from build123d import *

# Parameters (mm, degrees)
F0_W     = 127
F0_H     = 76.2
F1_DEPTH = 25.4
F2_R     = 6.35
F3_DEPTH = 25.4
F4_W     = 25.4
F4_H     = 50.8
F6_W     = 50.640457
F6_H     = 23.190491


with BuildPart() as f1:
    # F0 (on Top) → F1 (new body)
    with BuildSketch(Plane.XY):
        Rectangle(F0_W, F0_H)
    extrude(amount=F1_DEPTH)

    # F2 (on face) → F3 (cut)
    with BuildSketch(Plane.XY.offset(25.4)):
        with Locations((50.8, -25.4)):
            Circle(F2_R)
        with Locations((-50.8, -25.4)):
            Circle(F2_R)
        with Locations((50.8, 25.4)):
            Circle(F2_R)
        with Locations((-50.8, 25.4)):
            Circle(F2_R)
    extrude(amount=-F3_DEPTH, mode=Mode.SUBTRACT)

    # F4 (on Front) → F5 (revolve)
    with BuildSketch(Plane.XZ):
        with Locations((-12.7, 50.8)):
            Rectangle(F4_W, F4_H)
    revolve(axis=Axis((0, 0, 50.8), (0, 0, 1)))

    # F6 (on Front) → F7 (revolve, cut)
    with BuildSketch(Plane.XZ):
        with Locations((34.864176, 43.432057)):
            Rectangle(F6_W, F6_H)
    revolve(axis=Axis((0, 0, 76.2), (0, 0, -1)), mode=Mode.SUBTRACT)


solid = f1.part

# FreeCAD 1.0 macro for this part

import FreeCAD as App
import Part
import Sketcher
Q = App.Units.Quantity

doc = App.newDocument("Part")
body = doc.addObject("PartDesign::Body", "Body")

sketch1 = body.newObject("Sketcher::SketchObject", "Sketch")
sketch1.AttachmentSupport = (doc.getObject("XY_Plane"), [""])
sketch1.MapMode = "FlatFace"
sketch1.addGeometry([
    Part.LineSegment(App.Vector(-64, 38, 0), App.Vector(-64, -38, 0)),
    Part.LineSegment(App.Vector(-64, -38, 0), App.Vector(64, -38, 0)),
    Part.LineSegment(App.Vector(64, -38, 0), App.Vector(64, 38, 0)),
    Part.LineSegment(App.Vector(64, 38, 0), App.Vector(-64, 38, 0)),
], False)
sketch1.addConstraint([
    Sketcher.Constraint("Coincident", 0, 2, 1, 1),
    Sketcher.Constraint("Coincident", 1, 2, 2, 1),
    Sketcher.Constraint("Coincident", 2, 2, 3, 1),
    Sketcher.Constraint("Coincident", 3, 2, 0, 1),
    Sketcher.Constraint("Vertical", 0),
    Sketcher.Constraint("Horizontal", 1),
    Sketcher.Constraint("Vertical", 2),
    Sketcher.Constraint("Horizontal", 3),
    Sketcher.Constraint("Symmetric", 0, 2, 2, 2, -1, 1),
    Sketcher.Constraint("DistanceX", 1, 1, 1, 2, Q("5 in")),
    Sketcher.Constraint("DistanceY", 0, 2, 0, 1, Q("3 in")),
])
pad1 = body.newObject("PartDesign::Pad", "Pad")
pad1.Profile = sketch1
pad1.Length = Q("1 in")

sketch2 = body.newObject("Sketcher::SketchObject", "Sketch001")
sketch2.AttachmentSupport = (doc.getObject("XY_Plane"), [""])
sketch2.MapMode = "FlatFace"
sketch2.AttachmentOffset = App.Placement(App.Vector(0, 0, 1 * 25.4), App.Rotation())
sketch2.addGeometry([
    Part.Circle(App.Vector(51, -25, 0), App.Vector(0, 0, 1), 6),
    Part.Circle(App.Vector(-51, -25, 0), App.Vector(0, 0, 1), 6),
    Part.Circle(App.Vector(51, 25, 0), App.Vector(0, 0, 1), 6),
    Part.Circle(App.Vector(-51, 25, 0), App.Vector(0, 0, 1), 6),
], False)
sketch2.addConstraint([
    Sketcher.Constraint("Equal", 0, 1),
    Sketcher.Constraint("Equal", 1, 2),
    Sketcher.Constraint("Equal", 2, 3),
    Sketcher.Constraint("Symmetric", 1, 3, 2, 3, -1, 1),
    Sketcher.Constraint("Symmetric", 0, 3, 3, 3, -1, 1),
    Sketcher.Constraint("Symmetric", 0, 3, 1, 3, -2),
    Sketcher.Constraint("Diameter", 0, Q("0.5 in")),
    Sketcher.Constraint("DistanceX", -1, 1, 0, 3, Q("2 in")),
    Sketcher.Constraint("DistanceY", 0, 3, -1, 1, Q("1 in")),
])
pocket1 = body.newObject("PartDesign::Pocket", "Pocket")
pocket1.Profile = sketch2
pocket1.Length = Q("1 in")

sketch3 = body.newObject("Sketcher::SketchObject", "Sketch002")
sketch3.AttachmentSupport = (doc.getObject("XZ_Plane"), [""])
sketch3.MapMode = "FlatFace"
sketch3.addGeometry([
    Part.LineSegment(App.Vector(-25, 76, 0), App.Vector(-25, 25, 0)),
    Part.LineSegment(App.Vector(-25, 25, 0), App.Vector(0, 25, 0)),
    Part.LineSegment(App.Vector(0, 25, 0), App.Vector(0, 76, 0)),
    Part.LineSegment(App.Vector(0, 76, 0), App.Vector(-25, 76, 0)),
], False)
sketch3.addConstraint([
    Sketcher.Constraint("Coincident", 0, 2, 1, 1),
    Sketcher.Constraint("Coincident", 1, 2, 2, 1),
    Sketcher.Constraint("Coincident", 2, 2, 3, 1),
    Sketcher.Constraint("Coincident", 3, 2, 0, 1),
    Sketcher.Constraint("Vertical", 0),
    Sketcher.Constraint("Horizontal", 1),
    Sketcher.Constraint("Vertical", 2),
    Sketcher.Constraint("Horizontal", 3),
    Sketcher.Constraint("PointOnObject", 1, 2, -2),
    Sketcher.Constraint("DistanceX", 1, 1, 1, 2, Q("1 in")),
    Sketcher.Constraint("DistanceY", 0, 2, 0, 1, Q("2 in")),
    Sketcher.Constraint("DistanceY", -1, 1, 0, 2, Q("1 in")),
])
revolution = body.newObject("PartDesign::Revolution", "Revolution")
revolution.Profile = sketch3
revolution.ReferenceAxis = (sketch3, ["V_Axis"])
revolution.Angle = 360

sketch4 = body.newObject("Sketcher::SketchObject", "Sketch003")
sketch4.AttachmentSupport = (doc.getObject("XZ_Plane"), [""])
sketch4.MapMode = "FlatFace"
sketch4.addGeometry([
    Part.LineSegment(App.Vector(10, 55, 0), App.Vector(10, 32, 0)),
    Part.LineSegment(App.Vector(10, 32, 0), App.Vector(60, 32, 0)),
    Part.LineSegment(App.Vector(60, 32, 0), App.Vector(60, 55, 0)),
    Part.LineSegment(App.Vector(60, 55, 0), App.Vector(10, 55, 0)),
], False)
sketch4.addConstraint([
    Sketcher.Constraint("Coincident", 0, 2, 1, 1),
    Sketcher.Constraint("Coincident", 1, 2, 2, 1),
    Sketcher.Constraint("Coincident", 2, 2, 3, 1),
    Sketcher.Constraint("Coincident", 3, 2, 0, 1),
    Sketcher.Constraint("Vertical", 0),
    Sketcher.Constraint("Horizontal", 1),
    Sketcher.Constraint("Vertical", 2),
    Sketcher.Constraint("Horizontal", 3),
    Sketcher.Constraint("DistanceY", 0, 2, 0, 1, Q("23.190491 mm")),
    Sketcher.Constraint("DistanceX", 1, 1, 1, 2, Q("50.640457 mm")),
    Sketcher.Constraint("DistanceY", -1, 1, 0, 2, Q("31.836811 mm")),
    Sketcher.Constraint("DistanceX", -1, 1, 0, 2, Q("9.543947 mm")),
])
groove = body.newObject("PartDesign::Groove", "Groove")
groove.Profile = sketch4
groove.ReferenceAxis = (sketch4, ["V_Axis"])
groove.Angle = 360

doc.recompute()
